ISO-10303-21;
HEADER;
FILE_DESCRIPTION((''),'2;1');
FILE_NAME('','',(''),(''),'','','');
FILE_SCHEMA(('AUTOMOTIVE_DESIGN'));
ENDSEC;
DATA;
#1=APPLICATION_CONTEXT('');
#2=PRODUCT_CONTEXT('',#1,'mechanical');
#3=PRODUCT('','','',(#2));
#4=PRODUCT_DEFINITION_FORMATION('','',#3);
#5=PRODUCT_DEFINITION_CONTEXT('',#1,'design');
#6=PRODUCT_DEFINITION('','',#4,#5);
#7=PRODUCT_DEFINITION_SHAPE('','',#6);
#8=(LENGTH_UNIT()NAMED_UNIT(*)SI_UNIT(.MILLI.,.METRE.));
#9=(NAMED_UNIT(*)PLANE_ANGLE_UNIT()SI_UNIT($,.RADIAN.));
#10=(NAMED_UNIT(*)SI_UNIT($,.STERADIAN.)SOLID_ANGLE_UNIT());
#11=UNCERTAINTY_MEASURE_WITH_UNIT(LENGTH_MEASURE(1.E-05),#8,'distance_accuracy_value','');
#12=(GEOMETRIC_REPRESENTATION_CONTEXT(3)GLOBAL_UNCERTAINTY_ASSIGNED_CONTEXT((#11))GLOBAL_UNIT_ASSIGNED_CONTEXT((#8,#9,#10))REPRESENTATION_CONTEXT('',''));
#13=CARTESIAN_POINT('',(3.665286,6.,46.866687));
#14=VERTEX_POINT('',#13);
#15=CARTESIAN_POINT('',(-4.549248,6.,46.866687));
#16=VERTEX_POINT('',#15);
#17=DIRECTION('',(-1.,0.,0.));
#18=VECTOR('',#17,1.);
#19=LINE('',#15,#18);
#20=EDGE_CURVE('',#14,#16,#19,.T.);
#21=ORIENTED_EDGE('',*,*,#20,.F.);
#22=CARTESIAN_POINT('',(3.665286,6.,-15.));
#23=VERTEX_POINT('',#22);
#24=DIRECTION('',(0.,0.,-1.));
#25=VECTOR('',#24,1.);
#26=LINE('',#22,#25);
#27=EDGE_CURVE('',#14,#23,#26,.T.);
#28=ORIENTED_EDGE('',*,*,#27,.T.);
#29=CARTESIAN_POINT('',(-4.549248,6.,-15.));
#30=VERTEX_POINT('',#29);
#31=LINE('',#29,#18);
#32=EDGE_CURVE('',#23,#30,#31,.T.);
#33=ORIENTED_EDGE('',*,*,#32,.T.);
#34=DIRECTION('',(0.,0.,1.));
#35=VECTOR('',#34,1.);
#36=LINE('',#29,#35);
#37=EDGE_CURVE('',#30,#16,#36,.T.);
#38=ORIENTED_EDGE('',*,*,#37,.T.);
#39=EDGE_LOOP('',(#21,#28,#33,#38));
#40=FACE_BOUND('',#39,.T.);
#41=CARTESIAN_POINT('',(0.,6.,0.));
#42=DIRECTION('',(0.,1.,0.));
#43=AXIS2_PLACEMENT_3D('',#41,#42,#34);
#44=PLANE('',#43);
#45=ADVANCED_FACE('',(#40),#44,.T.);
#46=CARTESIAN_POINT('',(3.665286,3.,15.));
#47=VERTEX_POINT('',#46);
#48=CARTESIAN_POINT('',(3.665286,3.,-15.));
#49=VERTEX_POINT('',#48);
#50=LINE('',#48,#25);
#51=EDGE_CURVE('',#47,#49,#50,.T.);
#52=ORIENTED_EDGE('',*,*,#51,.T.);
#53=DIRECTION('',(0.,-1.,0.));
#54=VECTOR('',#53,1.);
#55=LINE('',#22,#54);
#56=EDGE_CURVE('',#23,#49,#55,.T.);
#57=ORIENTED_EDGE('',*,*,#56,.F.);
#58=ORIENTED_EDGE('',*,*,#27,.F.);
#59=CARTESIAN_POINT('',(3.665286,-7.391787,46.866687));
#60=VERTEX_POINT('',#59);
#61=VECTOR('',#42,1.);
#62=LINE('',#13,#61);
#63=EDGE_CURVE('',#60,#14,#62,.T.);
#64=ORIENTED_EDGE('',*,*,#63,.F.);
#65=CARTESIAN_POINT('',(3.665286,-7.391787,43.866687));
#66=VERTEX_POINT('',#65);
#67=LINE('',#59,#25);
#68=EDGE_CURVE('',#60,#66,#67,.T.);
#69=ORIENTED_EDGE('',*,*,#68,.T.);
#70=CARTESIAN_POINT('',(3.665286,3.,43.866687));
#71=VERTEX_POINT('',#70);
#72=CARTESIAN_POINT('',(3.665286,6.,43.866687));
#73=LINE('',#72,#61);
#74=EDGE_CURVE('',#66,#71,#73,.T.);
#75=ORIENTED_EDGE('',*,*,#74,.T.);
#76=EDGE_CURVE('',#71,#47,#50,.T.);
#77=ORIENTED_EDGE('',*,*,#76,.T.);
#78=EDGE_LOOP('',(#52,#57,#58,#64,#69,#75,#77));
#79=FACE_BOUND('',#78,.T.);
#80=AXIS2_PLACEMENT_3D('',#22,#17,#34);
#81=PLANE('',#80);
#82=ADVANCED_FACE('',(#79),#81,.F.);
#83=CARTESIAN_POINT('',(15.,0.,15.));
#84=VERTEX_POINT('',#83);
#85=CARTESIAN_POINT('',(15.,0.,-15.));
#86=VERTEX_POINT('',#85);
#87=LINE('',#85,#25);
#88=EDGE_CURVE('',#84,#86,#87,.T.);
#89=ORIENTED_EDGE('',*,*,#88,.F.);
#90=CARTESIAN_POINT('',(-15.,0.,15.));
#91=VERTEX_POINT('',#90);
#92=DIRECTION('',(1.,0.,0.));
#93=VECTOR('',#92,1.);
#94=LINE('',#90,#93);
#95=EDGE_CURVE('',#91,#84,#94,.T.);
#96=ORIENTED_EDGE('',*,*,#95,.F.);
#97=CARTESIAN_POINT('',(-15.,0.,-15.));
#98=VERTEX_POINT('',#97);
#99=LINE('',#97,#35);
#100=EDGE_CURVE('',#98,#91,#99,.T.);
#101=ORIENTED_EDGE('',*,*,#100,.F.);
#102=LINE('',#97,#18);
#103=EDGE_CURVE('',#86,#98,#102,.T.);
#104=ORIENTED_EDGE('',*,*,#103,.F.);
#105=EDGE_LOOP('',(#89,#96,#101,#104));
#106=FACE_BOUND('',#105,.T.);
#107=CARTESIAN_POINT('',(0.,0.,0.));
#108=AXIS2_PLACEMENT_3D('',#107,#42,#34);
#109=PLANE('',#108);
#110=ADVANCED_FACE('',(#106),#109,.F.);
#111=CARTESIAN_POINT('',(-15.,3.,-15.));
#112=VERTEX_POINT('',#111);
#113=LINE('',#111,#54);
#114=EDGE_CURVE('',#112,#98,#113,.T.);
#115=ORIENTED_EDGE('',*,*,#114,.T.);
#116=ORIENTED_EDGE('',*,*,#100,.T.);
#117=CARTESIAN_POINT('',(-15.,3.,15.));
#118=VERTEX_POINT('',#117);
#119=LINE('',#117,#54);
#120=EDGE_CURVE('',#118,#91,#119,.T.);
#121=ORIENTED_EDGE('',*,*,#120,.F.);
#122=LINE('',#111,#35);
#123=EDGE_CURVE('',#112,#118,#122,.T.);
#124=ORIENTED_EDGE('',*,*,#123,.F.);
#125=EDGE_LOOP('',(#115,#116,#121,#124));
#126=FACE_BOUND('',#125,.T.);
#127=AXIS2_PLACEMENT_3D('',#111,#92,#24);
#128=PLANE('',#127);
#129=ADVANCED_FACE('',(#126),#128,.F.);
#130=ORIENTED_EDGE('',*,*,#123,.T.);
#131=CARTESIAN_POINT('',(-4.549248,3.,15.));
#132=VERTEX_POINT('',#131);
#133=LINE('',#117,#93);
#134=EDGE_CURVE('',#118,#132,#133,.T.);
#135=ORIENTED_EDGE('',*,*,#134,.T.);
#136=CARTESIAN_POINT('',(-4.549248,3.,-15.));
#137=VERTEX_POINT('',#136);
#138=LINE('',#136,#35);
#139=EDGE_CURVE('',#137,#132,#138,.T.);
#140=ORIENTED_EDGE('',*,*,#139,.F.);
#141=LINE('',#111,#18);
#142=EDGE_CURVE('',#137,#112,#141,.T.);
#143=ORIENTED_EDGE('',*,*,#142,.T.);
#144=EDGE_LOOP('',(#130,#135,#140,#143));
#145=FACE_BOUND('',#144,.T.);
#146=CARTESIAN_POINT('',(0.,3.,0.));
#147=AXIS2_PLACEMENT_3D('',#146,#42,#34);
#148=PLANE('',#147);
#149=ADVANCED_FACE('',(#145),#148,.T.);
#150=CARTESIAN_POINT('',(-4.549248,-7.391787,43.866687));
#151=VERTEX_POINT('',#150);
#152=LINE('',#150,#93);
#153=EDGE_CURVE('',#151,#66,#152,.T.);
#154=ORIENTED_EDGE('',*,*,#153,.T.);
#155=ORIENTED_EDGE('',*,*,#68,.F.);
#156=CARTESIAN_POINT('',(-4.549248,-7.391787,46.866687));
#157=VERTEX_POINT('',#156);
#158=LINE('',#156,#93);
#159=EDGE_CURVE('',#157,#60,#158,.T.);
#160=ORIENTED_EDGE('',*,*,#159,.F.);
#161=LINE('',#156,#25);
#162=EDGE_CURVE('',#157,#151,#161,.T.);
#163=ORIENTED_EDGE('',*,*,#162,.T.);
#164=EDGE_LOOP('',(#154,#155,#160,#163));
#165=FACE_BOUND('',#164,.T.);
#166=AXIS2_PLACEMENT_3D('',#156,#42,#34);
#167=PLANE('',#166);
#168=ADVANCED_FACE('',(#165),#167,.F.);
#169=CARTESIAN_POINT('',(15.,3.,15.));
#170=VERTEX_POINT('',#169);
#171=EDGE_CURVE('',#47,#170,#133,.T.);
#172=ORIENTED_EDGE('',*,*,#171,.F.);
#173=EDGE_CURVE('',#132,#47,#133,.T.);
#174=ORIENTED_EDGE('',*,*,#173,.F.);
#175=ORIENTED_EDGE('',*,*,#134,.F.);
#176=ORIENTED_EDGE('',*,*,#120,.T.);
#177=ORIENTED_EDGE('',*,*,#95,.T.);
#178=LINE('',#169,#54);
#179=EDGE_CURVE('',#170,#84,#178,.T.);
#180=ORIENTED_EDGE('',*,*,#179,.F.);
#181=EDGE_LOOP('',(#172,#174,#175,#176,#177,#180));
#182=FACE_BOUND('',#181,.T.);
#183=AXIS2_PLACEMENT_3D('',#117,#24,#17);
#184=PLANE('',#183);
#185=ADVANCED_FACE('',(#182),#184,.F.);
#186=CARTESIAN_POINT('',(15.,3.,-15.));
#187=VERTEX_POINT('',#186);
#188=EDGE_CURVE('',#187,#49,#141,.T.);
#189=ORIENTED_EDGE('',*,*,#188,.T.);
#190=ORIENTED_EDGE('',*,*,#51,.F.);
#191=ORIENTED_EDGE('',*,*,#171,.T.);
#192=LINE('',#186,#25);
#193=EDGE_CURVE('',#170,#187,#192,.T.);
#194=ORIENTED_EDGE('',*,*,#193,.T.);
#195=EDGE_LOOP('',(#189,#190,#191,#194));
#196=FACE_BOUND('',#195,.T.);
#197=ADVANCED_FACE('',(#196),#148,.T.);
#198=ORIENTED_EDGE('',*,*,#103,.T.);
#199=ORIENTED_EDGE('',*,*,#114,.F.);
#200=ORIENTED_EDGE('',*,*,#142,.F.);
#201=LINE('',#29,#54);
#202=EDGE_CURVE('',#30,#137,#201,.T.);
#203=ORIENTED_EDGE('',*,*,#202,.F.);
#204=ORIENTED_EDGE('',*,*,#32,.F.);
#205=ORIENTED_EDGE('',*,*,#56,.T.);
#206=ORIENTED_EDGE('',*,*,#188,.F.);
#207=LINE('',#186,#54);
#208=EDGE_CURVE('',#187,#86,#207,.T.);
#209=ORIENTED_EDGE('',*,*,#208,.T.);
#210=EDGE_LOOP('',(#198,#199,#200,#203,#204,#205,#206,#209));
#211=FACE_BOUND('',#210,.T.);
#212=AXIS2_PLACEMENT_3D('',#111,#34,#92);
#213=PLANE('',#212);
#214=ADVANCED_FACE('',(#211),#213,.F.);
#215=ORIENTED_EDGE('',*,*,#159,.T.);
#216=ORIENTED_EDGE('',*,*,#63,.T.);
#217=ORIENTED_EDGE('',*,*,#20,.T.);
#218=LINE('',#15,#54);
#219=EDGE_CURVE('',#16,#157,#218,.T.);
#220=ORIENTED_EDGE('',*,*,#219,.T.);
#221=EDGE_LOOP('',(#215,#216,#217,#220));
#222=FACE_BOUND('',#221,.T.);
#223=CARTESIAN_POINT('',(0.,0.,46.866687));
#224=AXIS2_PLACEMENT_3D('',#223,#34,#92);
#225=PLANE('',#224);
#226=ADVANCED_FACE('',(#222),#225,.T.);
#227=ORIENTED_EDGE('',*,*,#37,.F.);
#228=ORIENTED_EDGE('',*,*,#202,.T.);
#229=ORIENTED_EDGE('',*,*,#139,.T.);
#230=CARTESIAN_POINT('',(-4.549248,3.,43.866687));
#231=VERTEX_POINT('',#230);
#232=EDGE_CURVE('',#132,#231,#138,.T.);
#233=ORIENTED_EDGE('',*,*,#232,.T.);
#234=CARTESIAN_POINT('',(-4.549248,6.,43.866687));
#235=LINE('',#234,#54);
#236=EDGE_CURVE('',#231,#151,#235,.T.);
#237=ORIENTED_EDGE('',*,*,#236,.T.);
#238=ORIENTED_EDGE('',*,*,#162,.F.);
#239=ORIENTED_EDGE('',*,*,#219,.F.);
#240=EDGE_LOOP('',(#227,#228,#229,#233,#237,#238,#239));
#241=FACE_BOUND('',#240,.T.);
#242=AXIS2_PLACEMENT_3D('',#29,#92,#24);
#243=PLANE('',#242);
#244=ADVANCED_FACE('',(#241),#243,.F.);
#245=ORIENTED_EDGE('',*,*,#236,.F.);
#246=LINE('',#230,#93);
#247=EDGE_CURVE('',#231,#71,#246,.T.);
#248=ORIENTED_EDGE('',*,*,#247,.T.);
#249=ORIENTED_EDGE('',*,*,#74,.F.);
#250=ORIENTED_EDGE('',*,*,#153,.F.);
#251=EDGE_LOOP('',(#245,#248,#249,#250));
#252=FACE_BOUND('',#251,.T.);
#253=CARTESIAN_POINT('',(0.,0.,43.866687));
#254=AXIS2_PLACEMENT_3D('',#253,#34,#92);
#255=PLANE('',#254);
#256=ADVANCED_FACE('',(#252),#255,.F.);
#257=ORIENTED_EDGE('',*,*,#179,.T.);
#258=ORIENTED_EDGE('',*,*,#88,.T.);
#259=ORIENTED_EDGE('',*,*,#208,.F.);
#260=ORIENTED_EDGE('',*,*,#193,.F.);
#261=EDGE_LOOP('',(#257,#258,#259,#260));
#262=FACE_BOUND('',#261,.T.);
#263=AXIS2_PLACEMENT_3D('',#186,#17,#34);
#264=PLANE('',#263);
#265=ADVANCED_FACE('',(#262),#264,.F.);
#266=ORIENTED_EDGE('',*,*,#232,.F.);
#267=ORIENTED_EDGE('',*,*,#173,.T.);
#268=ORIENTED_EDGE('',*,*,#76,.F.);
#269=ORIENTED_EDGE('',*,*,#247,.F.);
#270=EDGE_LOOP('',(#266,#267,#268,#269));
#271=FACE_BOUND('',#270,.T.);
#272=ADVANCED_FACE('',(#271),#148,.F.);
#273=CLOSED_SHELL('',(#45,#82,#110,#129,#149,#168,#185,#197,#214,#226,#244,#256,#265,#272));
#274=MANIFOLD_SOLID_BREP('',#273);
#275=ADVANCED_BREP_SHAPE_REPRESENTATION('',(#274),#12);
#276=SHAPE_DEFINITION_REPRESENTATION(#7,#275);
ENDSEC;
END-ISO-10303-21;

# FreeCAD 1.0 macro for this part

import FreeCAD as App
import Part
import Sketcher

V = App.Vector
Q = App.Units.Quantity


def add_polygon(sketch, points):
    """Adds a closed chain of lines whose ends are joined by coincident constraints."""
    first, n = sketch.GeometryCount, len(points)
    for a, b in zip(points, points[1:] + points[:1]):
        sketch.addGeometry(Part.LineSegment(App.Vector(*a, 0), App.Vector(*b, 0)), False)
    for i in range(n):
        sketch.addConstraint(Sketcher.Constraint("Coincident", first + i, 2, first + (i + 1) % n, 1))

doc = App.newDocument("Part")
body = doc.addObject("PartDesign::Body", "Body")

# Sketch on XZ plane
sketch1 = doc.addObject("Sketcher::SketchObject", "Sketch")
body.addObject(sketch1)
sketch1.AttachmentSupport = (doc.XZ_Plane, [""])
sketch1.MapMode = "FlatFace"
add_polygon(sketch1, [(-15, -15), (-15, 15), (15, 15), (15, -15)])  # lines 0-3
sketch1.addConstraint(Sketcher.Constraint("Vertical", 0))
sketch1.addConstraint(Sketcher.Constraint("Horizontal", 1))
sketch1.addConstraint(Sketcher.Constraint("Vertical", 2))
sketch1.addConstraint(Sketcher.Constraint("Horizontal", 3))
sketch1.addConstraint(Sketcher.Constraint("Symmetric", 0, 2, 2, 2, -1, 1))
sketch1.addConstraint(Sketcher.Constraint("Equal", 3, 0))
sketch1.addConstraint(Sketcher.Constraint("DistanceX", 1, 1, 1, 2, Q("30 mm")))
pad1 = doc.addObject("PartDesign::Pad", "Pad")
body.addObject(pad1)
pad1.Profile = sketch1
pad1.Length = 3
pad1.Reversed = True

# Sketch on XZ plane
sketch2 = doc.addObject("Sketcher::SketchObject", "Sketch001")
body.addObject(sketch2)
sketch2.AttachmentSupport = (doc.XZ_Plane, [""])
sketch2.MapMode = "FlatFace"
sketch2.AttachmentOffset = App.Placement(V(0, 0, -3), App.Rotation())
add_polygon(sketch2, [(-5, -15), (-5, 44), (4, 44), (4, -15)])  # lines 0-3
sketch2.addConstraint(Sketcher.Constraint("Vertical", 0))
sketch2.addConstraint(Sketcher.Constraint("Horizontal", 1))
sketch2.addConstraint(Sketcher.Constraint("Vertical", 2))
sketch2.addConstraint(Sketcher.Constraint("Horizontal", 3))
sketch2.addConstraint(Sketcher.Constraint("DistanceY", 2, 2, -1, 1, Q("15 mm")))
sketch2.addConstraint(Sketcher.Constraint("DistanceX", 1, 1, 1, 2, Q("8.214534 mm")))
sketch2.addConstraint(Sketcher.Constraint("DistanceY", 0, 1, 0, 2, Q("58.866687 mm")))
sketch2.addConstraint(Sketcher.Constraint("DistanceX", 0, 2, -1, 1, Q("4.549248 mm")))
pad2 = doc.addObject("PartDesign::Pad", "Pad001")
body.addObject(pad2)
pad2.Profile = sketch2
pad2.Length = 3
pad2.Reversed = True

# Sketch on XY plane
sketch3 = doc.addObject("Sketcher::SketchObject", "Sketch002")
body.addObject(sketch3)
sketch3.AttachmentSupport = (doc.XY_Plane, [""])
sketch3.MapMode = "FlatFace"
sketch3.AttachmentOffset = App.Placement(V(0, 0, 43.866687), App.Rotation())
add_polygon(sketch3, [(-5, 6), (-5, -7), (4, -7), (4, 6)])  # lines 0-3
sketch3.addConstraint(Sketcher.Constraint("Vertical", 0))
sketch3.addConstraint(Sketcher.Constraint("Horizontal", 1))
sketch3.addConstraint(Sketcher.Constraint("Vertical", 2))
sketch3.addConstraint(Sketcher.Constraint("Horizontal", 3))
sketch3.addConstraint(Sketcher.Constraint("DistanceY", -1, 1, 2, 2, Q("6 mm")))
sketch3.addConstraint(Sketcher.Constraint("DistanceX", 1, 1, 1, 2, Q("8.214534 mm")))
sketch3.addConstraint(Sketcher.Constraint("DistanceY", 0, 2, 0, 1, Q("13.391787 mm")))
sketch3.addConstraint(Sketcher.Constraint("DistanceX", 0, 2, -1, 1, Q("4.549248 mm")))
pad3 = doc.addObject("PartDesign::Pad", "Pad002")
body.addObject(pad3)
pad3.Profile = sketch3
pad3.Length = 3

doc.recompute()
